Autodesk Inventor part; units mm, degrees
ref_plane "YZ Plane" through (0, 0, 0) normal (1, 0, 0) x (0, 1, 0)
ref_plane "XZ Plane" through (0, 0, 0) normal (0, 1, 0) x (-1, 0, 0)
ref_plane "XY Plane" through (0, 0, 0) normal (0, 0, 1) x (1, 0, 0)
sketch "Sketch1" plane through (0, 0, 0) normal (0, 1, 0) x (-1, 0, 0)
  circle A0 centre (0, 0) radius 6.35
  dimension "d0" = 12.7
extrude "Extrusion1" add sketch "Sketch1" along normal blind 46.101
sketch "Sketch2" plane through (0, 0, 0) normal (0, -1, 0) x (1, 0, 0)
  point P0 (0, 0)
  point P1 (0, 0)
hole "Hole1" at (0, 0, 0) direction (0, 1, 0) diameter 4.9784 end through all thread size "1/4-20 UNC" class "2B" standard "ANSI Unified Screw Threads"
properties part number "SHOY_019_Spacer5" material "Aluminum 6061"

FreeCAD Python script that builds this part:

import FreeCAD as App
import Part
import Sketcher
from FreeCAD import Vector
Q = App.Units.Quantity

doc = App.newDocument("Part")
body = doc.addObject("PartDesign::Body", "Body")

sketch1 = body.newObject("Sketcher::SketchObject", "Sketch")
sketch1.AttachmentSupport = (doc.getObject("XZ_Plane"), [""])
sketch1.MapMode = "FlatFace"
sketch1.addGeometry(Part.Circle(Vector(0, 0, 0), Vector(0, 0, 1), 6), False)
sketch1.addConstraint(Sketcher.Constraint("Coincident", 0, 3, -1, 1))
sketch1.addConstraint(Sketcher.Constraint("Diameter", 0, Q("0.5 in")))
pad1 = body.newObject("PartDesign::Pad", "Pad")
pad1.Profile = sketch1
pad1.Length = Q("1.815 in")
pad1.Reversed = True

sketch2 = body.newObject("Sketcher::SketchObject", "Sketch001")
sketch2.AttachmentSupport = (doc.getObject("XZ_Plane"), [""])
sketch2.MapMode = "FlatFace"
sketch2.addGeometry(Part.Circle(Vector(0, 0, 0), Vector(0, 0, 1), 2.5), False)
sketch2.addConstraint(Sketcher.Constraint("Coincident", 0, 3, -1, 1))
sketch2.addConstraint(Sketcher.Constraint("Diameter", 0, Q("0.196 in")))
doc.recompute()
hole = body.newObject("PartDesign::Hole", "Hole")
hole.Profile = sketch2
hole.ThreadType = "None"
hole.Diameter = Q("0.196 in")
hole.DepthType = "ThroughAll"

doc.recompute()
